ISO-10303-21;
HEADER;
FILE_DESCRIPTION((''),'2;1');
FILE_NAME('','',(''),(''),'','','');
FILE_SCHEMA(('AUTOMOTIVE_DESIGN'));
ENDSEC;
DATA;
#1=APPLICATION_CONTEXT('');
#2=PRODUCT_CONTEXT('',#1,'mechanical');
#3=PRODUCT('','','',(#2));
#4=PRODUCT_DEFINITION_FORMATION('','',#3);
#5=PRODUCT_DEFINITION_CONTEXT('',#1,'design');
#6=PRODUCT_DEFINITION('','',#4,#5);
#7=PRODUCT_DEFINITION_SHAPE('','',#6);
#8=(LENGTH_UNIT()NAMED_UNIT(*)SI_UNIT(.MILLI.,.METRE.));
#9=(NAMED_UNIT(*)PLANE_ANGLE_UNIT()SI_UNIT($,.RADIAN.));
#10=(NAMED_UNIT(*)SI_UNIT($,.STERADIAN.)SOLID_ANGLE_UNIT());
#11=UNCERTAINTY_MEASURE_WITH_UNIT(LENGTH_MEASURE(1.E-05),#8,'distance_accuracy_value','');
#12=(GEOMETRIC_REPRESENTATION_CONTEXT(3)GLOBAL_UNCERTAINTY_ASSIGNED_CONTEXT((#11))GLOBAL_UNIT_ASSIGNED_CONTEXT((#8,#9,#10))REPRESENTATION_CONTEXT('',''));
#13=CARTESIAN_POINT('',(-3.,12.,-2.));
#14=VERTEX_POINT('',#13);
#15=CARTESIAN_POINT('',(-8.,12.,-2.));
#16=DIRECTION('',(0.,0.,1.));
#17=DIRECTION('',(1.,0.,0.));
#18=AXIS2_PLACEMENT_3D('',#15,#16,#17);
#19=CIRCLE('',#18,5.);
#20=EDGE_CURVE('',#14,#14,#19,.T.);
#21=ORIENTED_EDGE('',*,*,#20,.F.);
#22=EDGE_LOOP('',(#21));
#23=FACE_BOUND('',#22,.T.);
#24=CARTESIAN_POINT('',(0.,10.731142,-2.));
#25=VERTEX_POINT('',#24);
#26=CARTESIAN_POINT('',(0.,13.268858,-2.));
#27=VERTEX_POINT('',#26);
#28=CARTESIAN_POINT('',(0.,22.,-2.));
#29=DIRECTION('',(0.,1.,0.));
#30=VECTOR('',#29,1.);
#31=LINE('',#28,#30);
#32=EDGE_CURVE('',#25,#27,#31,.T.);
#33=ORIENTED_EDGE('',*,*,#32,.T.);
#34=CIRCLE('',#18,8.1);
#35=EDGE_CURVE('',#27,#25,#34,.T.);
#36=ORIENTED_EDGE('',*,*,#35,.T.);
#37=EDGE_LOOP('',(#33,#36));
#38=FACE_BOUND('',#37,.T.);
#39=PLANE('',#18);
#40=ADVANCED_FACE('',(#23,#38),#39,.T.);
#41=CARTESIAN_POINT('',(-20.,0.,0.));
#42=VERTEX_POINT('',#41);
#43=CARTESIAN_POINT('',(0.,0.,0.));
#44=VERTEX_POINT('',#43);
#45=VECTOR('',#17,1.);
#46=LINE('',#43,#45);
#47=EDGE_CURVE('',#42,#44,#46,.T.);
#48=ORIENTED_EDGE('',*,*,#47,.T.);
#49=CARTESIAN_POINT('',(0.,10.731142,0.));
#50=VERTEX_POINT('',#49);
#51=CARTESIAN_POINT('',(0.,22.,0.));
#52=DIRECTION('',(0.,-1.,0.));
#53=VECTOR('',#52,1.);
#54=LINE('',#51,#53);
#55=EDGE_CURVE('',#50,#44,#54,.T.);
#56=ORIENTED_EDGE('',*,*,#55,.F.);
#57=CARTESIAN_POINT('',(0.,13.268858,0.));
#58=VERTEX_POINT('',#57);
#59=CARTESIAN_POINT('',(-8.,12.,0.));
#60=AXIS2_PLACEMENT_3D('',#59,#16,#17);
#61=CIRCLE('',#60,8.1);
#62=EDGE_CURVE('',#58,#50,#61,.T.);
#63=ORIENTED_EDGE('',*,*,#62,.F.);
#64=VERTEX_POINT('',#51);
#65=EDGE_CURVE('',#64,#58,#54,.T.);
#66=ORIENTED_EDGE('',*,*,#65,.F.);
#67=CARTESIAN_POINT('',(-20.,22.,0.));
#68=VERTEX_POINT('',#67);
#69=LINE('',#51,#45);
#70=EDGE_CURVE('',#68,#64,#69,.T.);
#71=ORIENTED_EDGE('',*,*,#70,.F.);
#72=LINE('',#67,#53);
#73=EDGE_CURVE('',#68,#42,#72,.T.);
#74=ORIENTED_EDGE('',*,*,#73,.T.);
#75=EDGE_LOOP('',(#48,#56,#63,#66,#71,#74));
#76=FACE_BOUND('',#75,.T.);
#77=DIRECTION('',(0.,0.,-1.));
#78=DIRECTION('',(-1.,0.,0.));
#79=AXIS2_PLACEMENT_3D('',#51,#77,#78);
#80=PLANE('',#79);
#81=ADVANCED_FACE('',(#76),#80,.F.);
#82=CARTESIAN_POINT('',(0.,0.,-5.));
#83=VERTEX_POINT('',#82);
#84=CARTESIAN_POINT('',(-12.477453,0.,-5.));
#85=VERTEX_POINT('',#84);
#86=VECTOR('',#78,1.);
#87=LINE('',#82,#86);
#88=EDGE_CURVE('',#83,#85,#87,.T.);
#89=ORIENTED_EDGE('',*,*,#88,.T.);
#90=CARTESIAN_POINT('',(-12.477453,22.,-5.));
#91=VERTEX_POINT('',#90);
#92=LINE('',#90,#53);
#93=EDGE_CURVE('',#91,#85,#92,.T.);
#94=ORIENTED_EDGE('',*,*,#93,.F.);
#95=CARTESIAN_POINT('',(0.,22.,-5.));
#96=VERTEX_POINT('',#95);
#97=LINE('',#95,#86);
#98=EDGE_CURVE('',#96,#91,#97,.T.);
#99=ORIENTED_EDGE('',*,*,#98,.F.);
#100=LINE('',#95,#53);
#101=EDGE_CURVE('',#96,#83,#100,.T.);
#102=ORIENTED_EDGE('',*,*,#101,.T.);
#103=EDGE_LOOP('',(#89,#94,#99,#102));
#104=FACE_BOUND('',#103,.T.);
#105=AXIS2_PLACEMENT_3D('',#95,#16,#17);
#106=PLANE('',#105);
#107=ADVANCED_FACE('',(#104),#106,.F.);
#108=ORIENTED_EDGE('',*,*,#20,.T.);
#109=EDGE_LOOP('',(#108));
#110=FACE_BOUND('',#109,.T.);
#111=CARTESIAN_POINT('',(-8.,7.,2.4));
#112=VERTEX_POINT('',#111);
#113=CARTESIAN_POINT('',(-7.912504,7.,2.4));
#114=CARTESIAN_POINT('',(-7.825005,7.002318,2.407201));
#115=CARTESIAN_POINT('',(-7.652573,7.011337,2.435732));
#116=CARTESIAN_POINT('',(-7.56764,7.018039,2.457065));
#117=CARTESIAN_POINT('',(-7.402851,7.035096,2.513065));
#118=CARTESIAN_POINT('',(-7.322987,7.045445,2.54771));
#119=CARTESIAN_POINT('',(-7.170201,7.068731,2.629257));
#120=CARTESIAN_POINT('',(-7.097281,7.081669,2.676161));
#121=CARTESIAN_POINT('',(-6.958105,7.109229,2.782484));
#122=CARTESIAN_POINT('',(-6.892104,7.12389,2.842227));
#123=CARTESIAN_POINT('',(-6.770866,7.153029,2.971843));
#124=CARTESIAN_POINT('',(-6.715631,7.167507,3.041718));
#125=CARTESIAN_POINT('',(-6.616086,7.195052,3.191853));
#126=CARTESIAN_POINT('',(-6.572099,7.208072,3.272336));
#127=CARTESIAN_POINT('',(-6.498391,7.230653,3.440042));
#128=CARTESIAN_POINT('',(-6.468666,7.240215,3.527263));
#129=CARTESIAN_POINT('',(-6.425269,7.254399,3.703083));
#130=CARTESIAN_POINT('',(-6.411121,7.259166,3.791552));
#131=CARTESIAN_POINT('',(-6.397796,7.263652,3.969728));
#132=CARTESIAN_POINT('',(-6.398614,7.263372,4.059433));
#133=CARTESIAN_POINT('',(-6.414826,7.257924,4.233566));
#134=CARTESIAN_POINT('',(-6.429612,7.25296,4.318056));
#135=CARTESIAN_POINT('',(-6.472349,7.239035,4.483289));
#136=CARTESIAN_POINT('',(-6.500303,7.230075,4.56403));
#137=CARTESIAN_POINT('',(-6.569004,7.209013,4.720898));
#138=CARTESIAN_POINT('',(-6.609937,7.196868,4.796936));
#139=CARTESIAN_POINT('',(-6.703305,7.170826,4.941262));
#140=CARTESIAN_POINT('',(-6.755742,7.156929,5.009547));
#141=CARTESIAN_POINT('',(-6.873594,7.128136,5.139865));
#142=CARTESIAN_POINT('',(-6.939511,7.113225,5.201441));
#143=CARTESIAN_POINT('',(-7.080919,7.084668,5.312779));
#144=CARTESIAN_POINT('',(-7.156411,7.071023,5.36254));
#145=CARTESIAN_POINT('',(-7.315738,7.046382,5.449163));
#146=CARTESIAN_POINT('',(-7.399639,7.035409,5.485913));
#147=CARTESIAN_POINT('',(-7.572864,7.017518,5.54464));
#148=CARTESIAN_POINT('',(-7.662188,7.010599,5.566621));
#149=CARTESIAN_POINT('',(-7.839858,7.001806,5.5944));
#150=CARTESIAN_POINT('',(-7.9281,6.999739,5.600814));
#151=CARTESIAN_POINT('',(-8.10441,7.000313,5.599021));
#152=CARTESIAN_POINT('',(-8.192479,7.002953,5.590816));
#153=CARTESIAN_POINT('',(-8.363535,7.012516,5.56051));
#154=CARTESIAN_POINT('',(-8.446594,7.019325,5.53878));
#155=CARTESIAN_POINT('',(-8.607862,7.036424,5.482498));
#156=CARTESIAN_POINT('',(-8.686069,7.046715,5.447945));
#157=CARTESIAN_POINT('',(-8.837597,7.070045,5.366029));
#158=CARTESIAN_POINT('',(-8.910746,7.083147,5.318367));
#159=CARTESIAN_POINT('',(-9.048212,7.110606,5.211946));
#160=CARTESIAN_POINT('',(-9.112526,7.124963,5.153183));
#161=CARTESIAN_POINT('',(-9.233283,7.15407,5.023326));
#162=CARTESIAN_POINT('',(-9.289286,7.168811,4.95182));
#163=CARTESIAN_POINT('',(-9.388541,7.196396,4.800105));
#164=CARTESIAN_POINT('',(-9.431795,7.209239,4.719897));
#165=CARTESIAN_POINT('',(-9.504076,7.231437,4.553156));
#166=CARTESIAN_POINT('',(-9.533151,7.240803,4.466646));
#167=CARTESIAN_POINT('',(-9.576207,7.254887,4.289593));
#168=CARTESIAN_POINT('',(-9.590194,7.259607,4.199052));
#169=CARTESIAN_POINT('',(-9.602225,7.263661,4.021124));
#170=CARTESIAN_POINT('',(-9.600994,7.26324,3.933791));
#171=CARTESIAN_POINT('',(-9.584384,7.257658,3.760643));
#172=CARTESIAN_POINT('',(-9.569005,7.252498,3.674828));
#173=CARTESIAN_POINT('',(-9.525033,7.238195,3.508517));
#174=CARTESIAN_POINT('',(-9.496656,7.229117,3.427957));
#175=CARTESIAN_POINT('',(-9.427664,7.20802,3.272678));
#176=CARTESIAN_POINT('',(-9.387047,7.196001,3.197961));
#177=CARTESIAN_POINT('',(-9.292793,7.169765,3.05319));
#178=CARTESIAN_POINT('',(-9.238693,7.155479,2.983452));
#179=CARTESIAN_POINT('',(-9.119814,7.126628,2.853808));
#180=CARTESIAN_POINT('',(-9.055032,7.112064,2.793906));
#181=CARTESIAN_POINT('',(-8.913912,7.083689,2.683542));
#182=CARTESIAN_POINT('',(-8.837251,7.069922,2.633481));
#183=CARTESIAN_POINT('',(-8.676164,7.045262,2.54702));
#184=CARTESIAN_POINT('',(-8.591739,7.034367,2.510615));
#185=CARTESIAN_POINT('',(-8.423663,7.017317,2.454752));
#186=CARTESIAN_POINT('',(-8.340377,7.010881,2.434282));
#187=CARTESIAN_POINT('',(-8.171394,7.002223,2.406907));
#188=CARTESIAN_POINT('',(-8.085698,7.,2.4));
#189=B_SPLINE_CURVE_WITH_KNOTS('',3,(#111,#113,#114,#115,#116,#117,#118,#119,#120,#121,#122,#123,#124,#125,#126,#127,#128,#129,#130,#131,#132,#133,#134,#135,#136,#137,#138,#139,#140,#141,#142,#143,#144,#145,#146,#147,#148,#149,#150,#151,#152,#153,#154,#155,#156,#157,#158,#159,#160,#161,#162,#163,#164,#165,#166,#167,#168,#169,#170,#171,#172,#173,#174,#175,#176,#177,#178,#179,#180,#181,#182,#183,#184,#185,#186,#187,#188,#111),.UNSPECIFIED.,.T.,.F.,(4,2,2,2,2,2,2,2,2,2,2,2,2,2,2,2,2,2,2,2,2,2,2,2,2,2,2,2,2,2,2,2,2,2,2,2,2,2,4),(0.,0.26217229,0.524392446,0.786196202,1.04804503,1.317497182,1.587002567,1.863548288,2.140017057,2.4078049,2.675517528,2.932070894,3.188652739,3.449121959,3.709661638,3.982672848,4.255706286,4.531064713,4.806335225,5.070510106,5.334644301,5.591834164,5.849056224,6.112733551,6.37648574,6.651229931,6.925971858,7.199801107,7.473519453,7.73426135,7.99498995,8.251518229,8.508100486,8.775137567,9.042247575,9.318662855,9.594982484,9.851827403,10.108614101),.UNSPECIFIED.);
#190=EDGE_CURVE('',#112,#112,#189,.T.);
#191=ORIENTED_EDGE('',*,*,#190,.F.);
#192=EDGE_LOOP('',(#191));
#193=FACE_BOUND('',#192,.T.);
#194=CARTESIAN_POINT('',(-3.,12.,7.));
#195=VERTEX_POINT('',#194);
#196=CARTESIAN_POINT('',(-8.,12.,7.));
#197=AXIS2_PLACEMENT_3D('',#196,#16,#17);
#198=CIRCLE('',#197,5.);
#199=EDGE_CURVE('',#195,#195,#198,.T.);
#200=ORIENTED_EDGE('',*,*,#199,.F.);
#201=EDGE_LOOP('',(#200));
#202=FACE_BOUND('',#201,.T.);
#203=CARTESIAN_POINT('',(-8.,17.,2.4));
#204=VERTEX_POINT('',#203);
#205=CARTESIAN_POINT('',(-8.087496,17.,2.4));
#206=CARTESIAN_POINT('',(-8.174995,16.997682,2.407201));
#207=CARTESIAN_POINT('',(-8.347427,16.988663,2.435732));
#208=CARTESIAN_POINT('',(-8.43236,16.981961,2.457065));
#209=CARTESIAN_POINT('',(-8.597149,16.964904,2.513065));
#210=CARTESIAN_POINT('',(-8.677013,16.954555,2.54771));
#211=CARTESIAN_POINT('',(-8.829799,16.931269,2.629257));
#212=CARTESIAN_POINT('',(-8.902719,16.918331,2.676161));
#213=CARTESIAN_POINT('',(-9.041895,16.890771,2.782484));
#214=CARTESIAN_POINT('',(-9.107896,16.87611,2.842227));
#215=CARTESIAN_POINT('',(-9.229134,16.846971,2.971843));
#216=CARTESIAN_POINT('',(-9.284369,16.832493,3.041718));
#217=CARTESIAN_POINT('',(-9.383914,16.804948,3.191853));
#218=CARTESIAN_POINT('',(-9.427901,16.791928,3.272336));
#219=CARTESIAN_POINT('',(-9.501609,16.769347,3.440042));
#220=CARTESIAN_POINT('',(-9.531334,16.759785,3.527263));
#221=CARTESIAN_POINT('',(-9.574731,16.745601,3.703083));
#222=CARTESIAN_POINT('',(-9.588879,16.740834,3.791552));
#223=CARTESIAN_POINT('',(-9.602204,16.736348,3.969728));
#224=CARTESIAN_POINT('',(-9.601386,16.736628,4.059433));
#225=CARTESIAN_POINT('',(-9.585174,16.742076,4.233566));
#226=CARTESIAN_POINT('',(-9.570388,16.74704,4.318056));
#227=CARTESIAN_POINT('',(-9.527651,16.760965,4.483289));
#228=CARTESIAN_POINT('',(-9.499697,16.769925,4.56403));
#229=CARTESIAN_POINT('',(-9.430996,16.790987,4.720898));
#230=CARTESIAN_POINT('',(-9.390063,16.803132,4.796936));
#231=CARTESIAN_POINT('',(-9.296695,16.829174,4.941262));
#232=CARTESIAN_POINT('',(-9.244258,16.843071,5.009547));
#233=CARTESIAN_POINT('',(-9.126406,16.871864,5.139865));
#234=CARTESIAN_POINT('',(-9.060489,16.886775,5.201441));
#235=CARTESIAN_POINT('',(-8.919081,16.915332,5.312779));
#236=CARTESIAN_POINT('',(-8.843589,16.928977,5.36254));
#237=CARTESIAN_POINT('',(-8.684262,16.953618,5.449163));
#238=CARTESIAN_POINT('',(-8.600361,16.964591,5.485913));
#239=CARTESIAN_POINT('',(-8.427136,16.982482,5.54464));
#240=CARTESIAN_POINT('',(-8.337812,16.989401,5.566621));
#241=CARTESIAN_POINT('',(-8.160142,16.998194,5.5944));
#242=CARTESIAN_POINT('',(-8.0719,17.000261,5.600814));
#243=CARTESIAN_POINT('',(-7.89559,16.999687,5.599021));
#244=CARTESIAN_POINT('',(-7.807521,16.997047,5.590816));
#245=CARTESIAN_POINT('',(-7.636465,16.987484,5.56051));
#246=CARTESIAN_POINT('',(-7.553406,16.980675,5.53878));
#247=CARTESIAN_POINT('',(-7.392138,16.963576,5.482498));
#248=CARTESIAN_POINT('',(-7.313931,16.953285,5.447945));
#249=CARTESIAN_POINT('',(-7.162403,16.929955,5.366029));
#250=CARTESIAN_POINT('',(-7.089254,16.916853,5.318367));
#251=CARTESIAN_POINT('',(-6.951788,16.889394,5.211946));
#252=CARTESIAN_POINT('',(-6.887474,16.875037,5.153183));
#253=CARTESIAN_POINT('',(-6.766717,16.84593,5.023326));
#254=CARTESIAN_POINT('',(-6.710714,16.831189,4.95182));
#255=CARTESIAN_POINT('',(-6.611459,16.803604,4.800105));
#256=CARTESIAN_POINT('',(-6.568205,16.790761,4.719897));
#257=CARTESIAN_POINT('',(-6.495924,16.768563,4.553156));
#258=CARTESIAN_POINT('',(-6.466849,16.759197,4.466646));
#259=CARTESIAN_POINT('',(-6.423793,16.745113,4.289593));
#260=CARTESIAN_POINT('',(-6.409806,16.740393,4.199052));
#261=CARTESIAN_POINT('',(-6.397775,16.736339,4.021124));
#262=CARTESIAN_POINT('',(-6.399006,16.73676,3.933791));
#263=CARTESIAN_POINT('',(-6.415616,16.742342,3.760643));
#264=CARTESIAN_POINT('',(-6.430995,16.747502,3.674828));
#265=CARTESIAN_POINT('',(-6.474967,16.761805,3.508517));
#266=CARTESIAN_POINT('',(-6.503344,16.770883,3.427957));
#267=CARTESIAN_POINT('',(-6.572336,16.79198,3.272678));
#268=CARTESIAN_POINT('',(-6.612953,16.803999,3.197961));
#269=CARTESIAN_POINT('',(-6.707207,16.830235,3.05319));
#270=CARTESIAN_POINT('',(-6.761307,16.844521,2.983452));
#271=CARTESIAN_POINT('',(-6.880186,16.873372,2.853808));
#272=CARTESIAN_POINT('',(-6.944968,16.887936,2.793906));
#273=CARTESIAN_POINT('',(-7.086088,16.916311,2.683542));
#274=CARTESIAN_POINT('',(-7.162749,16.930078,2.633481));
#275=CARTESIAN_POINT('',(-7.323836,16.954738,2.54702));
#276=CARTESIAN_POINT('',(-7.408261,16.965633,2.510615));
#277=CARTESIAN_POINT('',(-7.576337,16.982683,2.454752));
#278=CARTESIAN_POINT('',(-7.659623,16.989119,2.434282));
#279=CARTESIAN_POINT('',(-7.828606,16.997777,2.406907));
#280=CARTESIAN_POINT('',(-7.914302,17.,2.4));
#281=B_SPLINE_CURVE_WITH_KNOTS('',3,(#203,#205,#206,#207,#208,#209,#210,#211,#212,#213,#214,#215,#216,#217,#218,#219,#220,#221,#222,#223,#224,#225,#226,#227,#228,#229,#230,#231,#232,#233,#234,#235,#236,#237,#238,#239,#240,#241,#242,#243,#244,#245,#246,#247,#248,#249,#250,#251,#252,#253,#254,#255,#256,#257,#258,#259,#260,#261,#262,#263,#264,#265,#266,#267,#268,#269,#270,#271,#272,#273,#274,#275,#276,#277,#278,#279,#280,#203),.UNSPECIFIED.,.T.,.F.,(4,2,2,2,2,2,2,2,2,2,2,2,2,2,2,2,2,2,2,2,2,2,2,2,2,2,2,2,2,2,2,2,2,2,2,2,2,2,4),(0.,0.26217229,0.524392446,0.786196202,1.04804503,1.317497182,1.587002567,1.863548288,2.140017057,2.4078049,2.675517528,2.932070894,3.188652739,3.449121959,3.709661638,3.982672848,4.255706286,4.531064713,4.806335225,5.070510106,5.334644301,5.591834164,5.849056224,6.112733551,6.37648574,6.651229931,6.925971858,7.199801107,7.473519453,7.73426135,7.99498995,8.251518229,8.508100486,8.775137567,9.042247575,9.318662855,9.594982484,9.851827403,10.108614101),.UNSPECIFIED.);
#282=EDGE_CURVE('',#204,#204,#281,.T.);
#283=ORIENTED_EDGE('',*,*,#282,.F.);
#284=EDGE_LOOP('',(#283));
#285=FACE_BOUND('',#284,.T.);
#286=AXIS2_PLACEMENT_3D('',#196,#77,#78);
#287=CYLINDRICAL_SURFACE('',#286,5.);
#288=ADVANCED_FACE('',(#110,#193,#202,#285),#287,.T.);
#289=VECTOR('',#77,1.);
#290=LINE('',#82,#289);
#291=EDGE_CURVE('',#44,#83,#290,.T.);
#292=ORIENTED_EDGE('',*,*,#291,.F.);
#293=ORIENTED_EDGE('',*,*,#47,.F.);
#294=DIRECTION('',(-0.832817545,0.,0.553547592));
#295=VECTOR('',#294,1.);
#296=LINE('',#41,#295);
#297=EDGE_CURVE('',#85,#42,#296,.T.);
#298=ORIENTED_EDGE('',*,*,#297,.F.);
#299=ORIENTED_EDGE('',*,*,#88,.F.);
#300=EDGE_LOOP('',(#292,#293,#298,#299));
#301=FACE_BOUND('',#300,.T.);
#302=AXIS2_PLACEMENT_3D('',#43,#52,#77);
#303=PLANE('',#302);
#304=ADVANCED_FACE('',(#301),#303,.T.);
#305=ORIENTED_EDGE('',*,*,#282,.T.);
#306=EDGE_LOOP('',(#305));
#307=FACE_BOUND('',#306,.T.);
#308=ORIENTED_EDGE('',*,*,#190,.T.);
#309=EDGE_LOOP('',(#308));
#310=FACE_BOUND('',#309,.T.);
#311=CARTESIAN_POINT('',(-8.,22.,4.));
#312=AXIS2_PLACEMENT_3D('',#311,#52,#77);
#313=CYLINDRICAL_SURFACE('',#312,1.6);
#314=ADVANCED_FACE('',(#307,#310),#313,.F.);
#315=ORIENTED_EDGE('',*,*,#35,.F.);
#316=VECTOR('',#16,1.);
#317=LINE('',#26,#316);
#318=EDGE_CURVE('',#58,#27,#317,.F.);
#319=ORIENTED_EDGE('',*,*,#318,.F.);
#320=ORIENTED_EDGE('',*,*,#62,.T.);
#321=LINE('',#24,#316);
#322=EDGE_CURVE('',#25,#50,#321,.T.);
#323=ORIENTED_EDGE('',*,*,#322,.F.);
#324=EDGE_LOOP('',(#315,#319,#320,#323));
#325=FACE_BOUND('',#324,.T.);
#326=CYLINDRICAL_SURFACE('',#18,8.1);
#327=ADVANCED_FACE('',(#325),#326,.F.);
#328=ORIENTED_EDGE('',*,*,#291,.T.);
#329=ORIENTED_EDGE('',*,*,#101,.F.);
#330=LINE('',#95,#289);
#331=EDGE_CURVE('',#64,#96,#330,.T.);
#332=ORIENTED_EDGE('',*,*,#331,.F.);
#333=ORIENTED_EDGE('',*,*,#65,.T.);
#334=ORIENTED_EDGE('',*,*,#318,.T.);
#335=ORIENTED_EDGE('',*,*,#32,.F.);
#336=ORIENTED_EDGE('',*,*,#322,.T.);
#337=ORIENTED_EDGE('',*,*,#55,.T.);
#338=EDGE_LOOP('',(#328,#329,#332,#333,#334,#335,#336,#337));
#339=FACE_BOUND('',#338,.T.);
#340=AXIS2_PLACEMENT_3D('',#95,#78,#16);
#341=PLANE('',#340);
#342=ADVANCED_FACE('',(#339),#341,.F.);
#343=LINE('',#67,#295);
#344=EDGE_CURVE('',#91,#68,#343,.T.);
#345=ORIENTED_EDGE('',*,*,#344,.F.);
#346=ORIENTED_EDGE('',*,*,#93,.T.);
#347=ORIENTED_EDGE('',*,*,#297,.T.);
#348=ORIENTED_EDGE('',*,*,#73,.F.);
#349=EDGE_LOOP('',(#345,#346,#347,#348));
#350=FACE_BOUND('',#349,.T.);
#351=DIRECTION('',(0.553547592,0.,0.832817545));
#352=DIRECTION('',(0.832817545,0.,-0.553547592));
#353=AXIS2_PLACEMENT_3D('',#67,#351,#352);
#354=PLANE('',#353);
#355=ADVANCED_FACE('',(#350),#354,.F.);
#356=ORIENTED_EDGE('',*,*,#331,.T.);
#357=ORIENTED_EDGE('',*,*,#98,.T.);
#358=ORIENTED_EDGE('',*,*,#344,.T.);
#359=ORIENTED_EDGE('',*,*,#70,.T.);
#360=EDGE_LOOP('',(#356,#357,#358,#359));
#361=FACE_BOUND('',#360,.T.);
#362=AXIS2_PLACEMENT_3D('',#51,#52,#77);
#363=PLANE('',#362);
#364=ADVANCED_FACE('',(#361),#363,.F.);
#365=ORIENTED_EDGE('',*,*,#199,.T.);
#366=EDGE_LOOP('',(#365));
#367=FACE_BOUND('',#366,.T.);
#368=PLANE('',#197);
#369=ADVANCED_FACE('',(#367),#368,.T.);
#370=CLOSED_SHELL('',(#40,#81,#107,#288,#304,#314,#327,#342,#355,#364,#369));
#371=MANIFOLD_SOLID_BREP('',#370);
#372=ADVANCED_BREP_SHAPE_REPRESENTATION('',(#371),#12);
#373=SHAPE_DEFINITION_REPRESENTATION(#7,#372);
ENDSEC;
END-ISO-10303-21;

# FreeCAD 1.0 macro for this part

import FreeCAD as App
import Part
import Sketcher
Q = App.Units.Quantity

doc = App.newDocument("Part")
body = doc.addObject("PartDesign::Body", "Body")

# Sketch on XZ plane
sketch1 = doc.addObject("Sketcher::SketchObject", "Sketch")
body.addObject(sketch1)
sketch1.AttachmentSupport = (doc.XZ_Plane, [""])
sketch1.MapMode = "FlatFace"
sketch1.addGeometry(Part.LineSegment(App.Vector(-20, 0, 0), App.Vector(0, 0, 0)), False)
sketch1.addGeometry(Part.LineSegment(App.Vector(0, 0, 0), App.Vector(0, -5, 0)), False)
sketch1.addGeometry(Part.LineSegment(App.Vector(0, -5, 0), App.Vector(-12, -5, 0)), False)
sketch1.addGeometry(Part.LineSegment(App.Vector(-12, -5, 0), App.Vector(-20, 0, 0)), False)
sketch1.addConstraint(Sketcher.Constraint("Coincident", 0, 2, 1, 1))
sketch1.addConstraint(Sketcher.Constraint("Coincident", 1, 2, 2, 1))
sketch1.addConstraint(Sketcher.Constraint("Coincident", 2, 2, 3, 1))
sketch1.addConstraint(Sketcher.Constraint("Coincident", 3, 2, 0, 1))
sketch1.addConstraint(Sketcher.Constraint("Horizontal", 0))
sketch1.addConstraint(Sketcher.Constraint("Vertical", 1))
sketch1.addConstraint(Sketcher.Constraint("Horizontal", 2))
sketch1.addConstraint(Sketcher.Constraint("Coincident", 0, 2, -1, 1))
sketch1.addConstraint(Sketcher.Constraint("DistanceX", 0, 1, 0, 2, Q("20 mm")))
sketch1.addConstraint(Sketcher.Constraint("DistanceY", 1, 2, 1, 1, Q("5 mm")))
sketch1.addConstraint(Sketcher.Constraint("DistanceX", 2, 2, 2, 1, Q("12.477453 mm")))
pad1 = doc.addObject("PartDesign::Pad", "Pad")
body.addObject(pad1)
pad1.Profile = sketch1
pad1.Length = 22
pad1.Reversed = True

# Sketch on XY plane
sketch2 = doc.addObject("Sketcher::SketchObject", "Sketch001")
body.addObject(sketch2)
sketch2.AttachmentSupport = (doc.XY_Plane, [""])
sketch2.MapMode = "FlatFace"
sketch2.addGeometry(Part.Circle(App.Vector(-8, 12, 0), App.Vector(0, 0, 1), 5), False)
sketch2.addConstraint(Sketcher.Constraint("Diameter", 0, Q("10 mm")))
sketch2.addConstraint(Sketcher.Constraint("DistanceX", 0, 3, -1, 1, Q("8 mm")))
sketch2.addConstraint(Sketcher.Constraint("DistanceY", -1, 1, 0, 3, Q("12 mm")))
pad2 = doc.addObject("PartDesign::Pad", "Pad001")
body.addObject(pad2)
pad2.Profile = sketch2
pad2.Length = 7

# Sketch on XY plane
sketch3 = doc.addObject("Sketcher::SketchObject", "Sketch002")
body.addObject(sketch3)
sketch3.AttachmentSupport = (doc.XY_Plane, [""])
sketch3.MapMode = "FlatFace"
sketch3.AttachmentOffset = App.Placement(App.Vector(0, 0, -2), App.Rotation())
sketch3.addGeometry(Part.Circle(App.Vector(-8, 12, 0), App.Vector(0, 0, 1), 8), False)
sketch3.addGeometry(Part.Circle(App.Vector(-8, 12, 0), App.Vector(0, 0, 1), 5), False)
sketch3.addConstraint(Sketcher.Constraint("Coincident", 1, 3, 0, 3))
sketch3.addConstraint(Sketcher.Constraint("Diameter", 1, Q("10 mm")))
sketch3.addConstraint(Sketcher.Constraint("Diameter", 0, Q("16.2 mm")))
sketch3.addConstraint(Sketcher.Constraint("DistanceX", 0, 3, -1, 1, Q("8 mm")))
sketch3.addConstraint(Sketcher.Constraint("DistanceY", -1, 1, 0, 3, Q("12 mm")))
pocket1 = doc.addObject("PartDesign::Pocket", "Pocket")
body.addObject(pocket1)
pocket1.Profile = sketch3
pocket1.Length = 2
pocket1.Reversed = True

# Sketch on XZ plane
sketch4 = doc.addObject("Sketcher::SketchObject", "Sketch003")
body.addObject(sketch4)
sketch4.AttachmentSupport = (doc.XZ_Plane, [""])
sketch4.MapMode = "FlatFace"
sketch4.addGeometry(Part.Circle(App.Vector(-8, 4, 0), App.Vector(0, 0, 1), 1.6), False)
sketch4.addConstraint(Sketcher.Constraint("Diameter", 0, Q("3.2 mm")))
sketch4.addConstraint(Sketcher.Constraint("DistanceX", 0, 3, -1, 1, Q("8 mm")))
sketch4.addConstraint(Sketcher.Constraint("DistanceY", -1, 1, 0, 3, Q("4 mm")))
pocket2 = doc.addObject("PartDesign::Pocket", "Pocket001")
body.addObject(pocket2)
pocket2.Profile = sketch4
pocket2.Type = "ThroughAll"

doc.recompute()
